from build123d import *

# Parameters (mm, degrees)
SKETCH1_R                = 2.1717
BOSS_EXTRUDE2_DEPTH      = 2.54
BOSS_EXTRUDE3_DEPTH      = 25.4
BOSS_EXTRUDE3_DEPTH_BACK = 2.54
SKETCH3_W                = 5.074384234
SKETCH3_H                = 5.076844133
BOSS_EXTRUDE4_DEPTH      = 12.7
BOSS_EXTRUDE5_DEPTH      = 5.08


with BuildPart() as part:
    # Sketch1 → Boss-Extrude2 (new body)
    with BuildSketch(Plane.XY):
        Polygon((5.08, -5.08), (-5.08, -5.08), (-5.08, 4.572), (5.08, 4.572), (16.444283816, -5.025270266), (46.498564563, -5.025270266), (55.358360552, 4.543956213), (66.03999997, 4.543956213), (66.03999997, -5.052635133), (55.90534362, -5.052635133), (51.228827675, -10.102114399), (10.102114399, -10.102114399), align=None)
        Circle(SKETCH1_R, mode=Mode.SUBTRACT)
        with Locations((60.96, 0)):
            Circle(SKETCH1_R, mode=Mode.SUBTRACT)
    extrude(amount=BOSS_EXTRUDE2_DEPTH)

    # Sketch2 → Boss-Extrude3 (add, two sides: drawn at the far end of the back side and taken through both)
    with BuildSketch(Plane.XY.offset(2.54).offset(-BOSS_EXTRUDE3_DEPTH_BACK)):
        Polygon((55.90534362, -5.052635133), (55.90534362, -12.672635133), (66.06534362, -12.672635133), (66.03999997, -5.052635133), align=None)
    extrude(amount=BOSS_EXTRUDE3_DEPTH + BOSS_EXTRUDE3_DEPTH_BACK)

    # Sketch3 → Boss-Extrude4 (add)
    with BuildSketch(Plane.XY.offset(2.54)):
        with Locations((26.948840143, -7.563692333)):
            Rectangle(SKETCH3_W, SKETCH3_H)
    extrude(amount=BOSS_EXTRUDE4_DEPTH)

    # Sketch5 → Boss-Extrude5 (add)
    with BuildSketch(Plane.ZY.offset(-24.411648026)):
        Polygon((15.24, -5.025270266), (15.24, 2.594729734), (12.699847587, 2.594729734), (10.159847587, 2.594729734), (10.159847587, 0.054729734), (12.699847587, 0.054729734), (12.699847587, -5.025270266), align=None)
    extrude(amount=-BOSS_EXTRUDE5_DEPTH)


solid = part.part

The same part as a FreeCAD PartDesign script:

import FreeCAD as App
import Part
import Sketcher

V = App.Vector
Q = App.Units.Quantity


def add_polygon(sketch, points):
    """Adds a closed chain of lines whose ends are joined by coincident constraints."""
    first, n = sketch.GeometryCount, len(points)
    for a, b in zip(points, points[1:] + points[:1]):
        sketch.addGeometry(Part.LineSegment(App.Vector(*a, 0), App.Vector(*b, 0)), False)
    for i in range(n):
        sketch.addConstraint(Sketcher.Constraint("Coincident", first + i, 2, first + (i + 1) % n, 1))

doc = App.newDocument("Part")
body = doc.addObject("PartDesign::Body", "Body")

# Sketch on XY plane
sketch1 = body.newObject("Sketcher::SketchObject", "Sketch")
sketch1.AttachmentSupport = (doc.getObject("XY_Plane"), [""])
sketch1.MapMode = "FlatFace"
add_polygon(sketch1, [(-5.1, -5.1), (5.1, -5.1), (10.1, -10.1), (51.2, -10.1), (55.9, -5.1), (66, -5.1), (66, 4.5), (55.4, 4.5), (46.5, -5), (16.4, -5), (5.1, 4.6), (-5.1, 4.6)])  # lines 0-11
sketch1.addGeometry(Part.Circle(V(61, 0, 0), V(0, 0, 1), 2.2), False)  # 12
sketch1.addGeometry(Part.Circle(V(0, 0, 0), V(0, 0, 1), 2.2), False)  # 13
sketch1.addConstraint([
    Sketcher.Constraint("Horizontal", 0),
    Sketcher.Constraint("Horizontal", 2),
    Sketcher.Constraint("Horizontal", 4),
    Sketcher.Constraint("Vertical", 5),
    Sketcher.Constraint("Horizontal", 6),
    Sketcher.Constraint("Horizontal", 8),
    Sketcher.Constraint("Horizontal", 10),
    Sketcher.Constraint("Vertical", 11),
    Sketcher.Constraint("Coincident", 13, 3, -1, 1),
    Sketcher.Constraint("Equal", 12, 13),
    Sketcher.Constraint("PointOnObject", 12, 3, -1),
    Sketcher.Constraint("Vertical", 0, 2, 9, 2),
    Sketcher.Constraint("Diameter", 12, Q("0.171 in")),
    Sketcher.Constraint("DistanceX", 0, 1, 0, 2, Q("0.4 in")),
    Sketcher.Constraint("Angle", 1, Q("-45 deg")),
    Sketcher.Constraint("DistanceY", 11, 2, 11, 1, Q("0.38 in")),
    Sketcher.Constraint("DistanceX", -1, 1, 12, 3, Q("2.4 in")),
    Sketcher.Constraint("DistanceX", -1, 1, 0, 2, Q("0.2 in")),
    Sketcher.Constraint("DistanceY", 0, 2, -1, 1, Q("0.2 in")),
    Sketcher.Constraint("DistanceX", -1, 1, 4, 2, Q("2.6 in")),
    Sketcher.Constraint("DistanceX", 6, 2, 6, 1, Q("10.681639 mm")),
    Sketcher.Constraint("DistanceX", 8, 2, 8, 1, Q("30.054281 mm")),
    Sketcher.Constraint("DistanceY", 5, 1, 5, 2, Q("9.596591 mm")),
    Sketcher.Constraint("Distance", 3, Q("6.882372 mm")),
    Sketcher.Constraint("Distance", 7, Q("13.040939 mm")),
    Sketcher.Constraint("DistanceX", 2, 1, 2, 2, Q("41.126713 mm")),
    Sketcher.Constraint("DistanceX", 4, 1, 4, 2, Q("10.134656 mm")),
    Sketcher.Constraint("DistanceY", 7, 2, -1, 1, Q("5.02527 mm")),
    Sketcher.Constraint("DistanceY", 2, 2, 3, 2, Q("5.049479 mm")),
])
pad1 = body.newObject("PartDesign::Pad", "Pad")
pad1.Profile = sketch1
pad1.Length = Q("0.1 in")

# Sketch on XY plane
sketch2 = body.newObject("Sketcher::SketchObject", "Sketch001")
sketch2.AttachmentSupport = (doc.getObject("XY_Plane"), [""])
sketch2.MapMode = "FlatFace"
sketch2.AttachmentOffset = App.Placement(V(0, 0, 0.1 * 25.4), App.Rotation())
add_polygon(sketch2, [(56, -5), (56, -13), (66, -13), (66, -5)])  # lines 0-3
sketch2.addConstraint([
    Sketcher.Constraint("Vertical", 0),
    Sketcher.Constraint("Horizontal", 1),
    Sketcher.Constraint("Horizontal", 3),
    Sketcher.Constraint("DistanceX", 1, 1, 1, 2, Q("0.4 in")),
    Sketcher.Constraint("DistanceY", 0, 2, 0, 1, Q("0.3 in")),
    Sketcher.Constraint("DistanceX", -1, 1, 2, 2, Q("2.6 in")),
    Sketcher.Constraint("DistanceX", 3, 2, 3, 1, Q("10.134656 mm")),
    Sketcher.Constraint("DistanceY", 0, 2, -1, 1, Q("12.672635 mm")),
])
pad2 = body.newObject("PartDesign::Pad", "Pad001")
pad2.Profile = sketch2
pad2.Type = "TwoLengths"
pad2.Length = Q("1 in")
pad2.Length2 = Q("0.1 in")

# Sketch on XY plane
sketch3 = body.newObject("Sketcher::SketchObject", "Sketch002")
sketch3.AttachmentSupport = (doc.getObject("XY_Plane"), [""])
sketch3.MapMode = "FlatFace"
sketch3.AttachmentOffset = App.Placement(V(0, 0, 0.1 * 25.4), App.Rotation())
add_polygon(sketch3, [(24, -5), (24, -10), (29, -10), (29, -5)])  # lines 0-3
sketch3.addConstraint([
    Sketcher.Constraint("Vertical", 0),
    Sketcher.Constraint("Horizontal", 1),
    Sketcher.Constraint("Vertical", 2),
    Sketcher.Constraint("Horizontal", 3),
    Sketcher.Constraint("DistanceX", 1, 1, 1, 2, Q("5.074384 mm")),
    Sketcher.Constraint("DistanceY", 0, 2, 0, 1, Q("5.076844 mm")),
    Sketcher.Constraint("DistanceX", -1, 1, 0, 2, Q("24.411648 mm")),
    Sketcher.Constraint("DistanceY", 2, 2, -1, 1, Q("5.02527 mm")),
])
pad3 = body.newObject("PartDesign::Pad", "Pad002")
pad3.Profile = sketch3
pad3.Length = Q("0.5 in")

# Sketch on YZ plane
sketch4 = body.newObject("Sketcher::SketchObject", "Sketch003")
sketch4.AttachmentSupport = (doc.getObject("YZ_Plane"), [""])
sketch4.MapMode = "FlatFace"
sketch4.AttachmentOffset = App.Placement(V(0, 0, 24.411648), App.Rotation())
add_polygon(sketch4, [(-5, 15.2), (2.6, 15.2), (2.6, 10.2), (0.1, 10.2), (0.1, 12.7), (-5, 12.7)])  # lines 0-5
sketch4.addConstraint([
    Sketcher.Constraint("Horizontal", 0),
    Sketcher.Constraint("Vertical", 1),
    Sketcher.Constraint("Horizontal", 2),
    Sketcher.Constraint("Vertical", 3),
    Sketcher.Constraint("Horizontal", 4),
    Sketcher.Constraint("Vertical", 5),
    Sketcher.Constraint("Equal", 2, 3),
    Sketcher.Constraint("DistanceX", 0, 1, 0, 2, Q("0.3 in")),
    Sketcher.Constraint("DistanceX", 2, 2, 2, 1, Q("0.1 in")),
    Sketcher.Constraint("DistanceY", -1, 1, 0, 2, Q("0.6 in")),
    Sketcher.Constraint("DistanceY", 1, 2, 1, 1, Q("5.080152 mm")),
    Sketcher.Constraint("DistanceX", -1, 1, 0, 2, Q("2.59473 mm")),
])
pad4 = body.newObject("PartDesign::Pad", "Pad003")
pad4.Profile = sketch4
pad4.Length = Q("0.2 in")

doc.recompute()
